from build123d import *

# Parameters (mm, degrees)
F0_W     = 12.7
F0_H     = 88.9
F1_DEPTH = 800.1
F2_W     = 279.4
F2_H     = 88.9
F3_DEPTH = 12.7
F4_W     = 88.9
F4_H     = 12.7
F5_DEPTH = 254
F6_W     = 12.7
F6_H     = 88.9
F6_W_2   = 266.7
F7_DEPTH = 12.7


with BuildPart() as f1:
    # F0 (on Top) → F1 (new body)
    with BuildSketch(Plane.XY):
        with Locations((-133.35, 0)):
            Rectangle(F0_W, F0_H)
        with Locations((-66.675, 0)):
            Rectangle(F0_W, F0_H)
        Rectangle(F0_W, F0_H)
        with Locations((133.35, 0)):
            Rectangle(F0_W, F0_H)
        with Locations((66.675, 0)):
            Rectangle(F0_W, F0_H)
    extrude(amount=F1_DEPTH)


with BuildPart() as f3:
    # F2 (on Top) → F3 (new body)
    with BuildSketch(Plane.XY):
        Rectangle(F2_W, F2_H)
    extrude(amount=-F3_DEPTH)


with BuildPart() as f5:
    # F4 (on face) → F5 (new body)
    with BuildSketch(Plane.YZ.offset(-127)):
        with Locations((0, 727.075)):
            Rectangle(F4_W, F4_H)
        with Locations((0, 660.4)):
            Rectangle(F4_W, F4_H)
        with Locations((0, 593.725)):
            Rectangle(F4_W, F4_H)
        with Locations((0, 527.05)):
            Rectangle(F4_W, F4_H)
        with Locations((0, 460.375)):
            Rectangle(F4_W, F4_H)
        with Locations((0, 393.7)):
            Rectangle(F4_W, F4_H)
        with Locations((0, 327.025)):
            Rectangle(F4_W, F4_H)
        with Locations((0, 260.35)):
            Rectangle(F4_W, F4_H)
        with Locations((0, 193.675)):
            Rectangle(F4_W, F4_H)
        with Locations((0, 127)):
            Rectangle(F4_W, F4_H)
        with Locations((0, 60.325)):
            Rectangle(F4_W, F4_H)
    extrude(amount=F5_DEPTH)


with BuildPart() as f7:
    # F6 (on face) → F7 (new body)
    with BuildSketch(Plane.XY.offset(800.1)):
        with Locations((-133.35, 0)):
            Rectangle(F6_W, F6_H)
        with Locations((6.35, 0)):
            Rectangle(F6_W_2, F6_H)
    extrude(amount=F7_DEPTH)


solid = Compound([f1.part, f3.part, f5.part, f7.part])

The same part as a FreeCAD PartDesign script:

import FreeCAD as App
import Part
import Sketcher

V = App.Vector
Q = App.Units.Quantity


def add_polygon(sketch, points):
    """Adds a closed chain of lines whose ends are joined by coincident constraints."""
    first, n = sketch.GeometryCount, len(points)
    for a, b in zip(points, points[1:] + points[:1]):
        sketch.addGeometry(Part.LineSegment(App.Vector(*a, 0), App.Vector(*b, 0)), False)
    for i in range(n):
        sketch.addConstraint(Sketcher.Constraint("Coincident", first + i, 2, first + (i + 1) % n, 1))

doc = App.newDocument("Part")
params = doc.addObject("Spreadsheet::Sheet", "Params")
for row, (alias, value) in enumerate([
    ("sketch1_width", "0.5 in"),
    ("sketch1_height", "3.5 in"),
    ("pad1_length", "31.5 in"),
    ("sketch2_width", "11 in"),
    ("sketch2_height", "3.5 in"),
    ("pad2_length", "0.5 in"),
    ("sketch3_width", "3.5 in"),
    ("sketch3_height", "0.5 in"),
    ("pad3_length", "10 in"),
    ("sketch4_width", "11 in"),
    ("sketch4_height", "3.5 in"),
    ("pad4_length", "0.5 in"),
], start=1):
    params.set(f"A{row}", alias)
    params.set(f"B{row}", "=" + value)
    params.setAlias(f"B{row}", alias)

body = doc.addObject("PartDesign::Body", "Body")
body.AllowCompound = True

sketch1 = body.newObject("Sketcher::SketchObject", "Sketch")
sketch1.AttachmentSupport = (doc.getObject("XY_Plane"), [""])
sketch1.MapMode = "FlatFace"
add_polygon(sketch1, [(-140, 44), (-140, -44), (-127, -44), (-127, 44)])
add_polygon(sketch1, [(-73, 44), (-73, -44), (-60, -44), (-60, 44)])
add_polygon(sketch1, [(-6, 44), (-6, -44), (6, -44), (6, 44)])
add_polygon(sketch1, [(127, 44), (127, -44), (140, -44), (140, 44)])
add_polygon(sketch1, [(60, 44), (60, -44), (73, -44), (73, 44)])
sketch1.addConstraint([
    Sketcher.Constraint("Vertical", 0),
    Sketcher.Constraint("Horizontal", 1),
    Sketcher.Constraint("Vertical", 2),
    Sketcher.Constraint("Horizontal", 3),
    Sketcher.Constraint("Vertical", 4),
    Sketcher.Constraint("Horizontal", 5),
    Sketcher.Constraint("Vertical", 6),
    Sketcher.Constraint("Horizontal", 7),
    Sketcher.Constraint("Vertical", 8),
    Sketcher.Constraint("Horizontal", 9),
    Sketcher.Constraint("Vertical", 10),
    Sketcher.Constraint("Horizontal", 11),
    Sketcher.Constraint("Vertical", 12),
    Sketcher.Constraint("Horizontal", 13),
    Sketcher.Constraint("Vertical", 14),
    Sketcher.Constraint("Horizontal", 15),
    Sketcher.Constraint("Vertical", 16),
    Sketcher.Constraint("Horizontal", 17),
    Sketcher.Constraint("Vertical", 18),
    Sketcher.Constraint("Horizontal", 19),
    Sketcher.Constraint("Symmetric", 8, 2, 10, 2, -1, 1),
    Sketcher.Constraint("Symmetric", 2, 2, 12, 2, -1, 1),
    Sketcher.Constraint("Symmetric", 0, 2, 14, 2, -1, 1),
    Sketcher.Constraint("Symmetric", 6, 2, 16, 2, -1, 1),
    Sketcher.Constraint("Symmetric", 4, 2, 18, 2, -1, 1),
    Sketcher.Constraint("Horizontal", 1, 2, 4, 2),
    Sketcher.Constraint("Horizontal", 3, 2, 6, 2),
    Sketcher.Constraint("Horizontal", 5, 2, 8, 2),
    Sketcher.Constraint("Horizontal", 7, 2, 10, 2),
    Sketcher.Constraint("Equal", 3, 5),
    Sketcher.Constraint("Equal", 7, 9),
    Sketcher.Constraint("DistanceX", 1, 1, 1, 2, Q("0.5 in")),
    Sketcher.Constraint("DistanceY", 0, 2, 0, 1, Q("3.5 in")),
    Sketcher.Constraint("DistanceX", 1, 2, -1, 1, Q("5 in")),
    Sketcher.Constraint("DistanceX", 4, 2, -1, 1, Q("2.875 in")),
])
sketch1.setExpression("Constraints[51]", "Params.sketch1_width")
sketch1.setExpression("Constraints[52]", "Params.sketch1_height")
pad1 = body.newObject("PartDesign::Pad", "Pad")
pad1.Profile = sketch1
pad1.setExpression("Length", "Params.pad1_length")
body2 = doc.addObject("PartDesign::Body", "Body001")

sketch2 = body2.newObject("Sketcher::SketchObject", "Sketch001")
sketch2.AttachmentSupport = (doc.getObject("XY_Plane001"), [""])
sketch2.MapMode = "FlatFace"
add_polygon(sketch2, [(-140, 44), (-140, -44), (140, -44), (140, 44)])
sketch2.addConstraint([
    Sketcher.Constraint("Vertical", 0),
    Sketcher.Constraint("Horizontal", 1),
    Sketcher.Constraint("Vertical", 2),
    Sketcher.Constraint("Horizontal", 3),
    Sketcher.Constraint("Symmetric", 0, 2, 2, 2, -1, 1),
    Sketcher.Constraint("DistanceX", 1, 1, 1, 2, Q("11 in")),
    Sketcher.Constraint("DistanceY", 0, 2, 0, 1, Q("3.5 in")),
])
sketch2.setExpression("Constraints[9]", "Params.sketch2_width")
sketch2.setExpression("Constraints[10]", "Params.sketch2_height")
pad2 = body2.newObject("PartDesign::Pad", "Pad001")
pad2.Profile = sketch2
pad2.setExpression("Length", "Params.pad2_length")
pad2.Reversed = True
body3 = doc.addObject("PartDesign::Body", "Body002")
body3.AllowCompound = True

sketch3 = body3.newObject("Sketcher::SketchObject", "Sketch002")
sketch3.AttachmentSupport = (doc.getObject("YZ_Plane002"), [""])
sketch3.MapMode = "FlatFace"
sketch3.AttachmentOffset = App.Placement(V(0, 0, -5 * 25.4), App.Rotation())
add_polygon(sketch3, [(-44, 733), (-44, 721), (44, 721), (44, 733)])
add_polygon(sketch3, [(-44, 667), (-44, 654), (44, 654), (44, 667)])
add_polygon(sketch3, [(-44, 600), (-44, 587), (44, 587), (44, 600)])
add_polygon(sketch3, [(-44, 533), (-44, 521), (44, 521), (44, 533)])
add_polygon(sketch3, [(-44, 467), (-44, 454), (44, 454), (44, 467)])
add_polygon(sketch3, [(-44, 400), (-44, 387), (44, 387), (44, 400)])
add_polygon(sketch3, [(-44, 333), (-44, 321), (44, 321), (44, 333)])
add_polygon(sketch3, [(-44, 267), (-44, 254), (44, 254), (44, 267)])
add_polygon(sketch3, [(-44, 200), (-44, 187), (44, 187), (44, 200)])
add_polygon(sketch3, [(-44, 133), (-44, 121), (44, 121), (44, 133)])
add_polygon(sketch3, [(-44, 67), (-44, 54), (44, 54), (44, 67)])
sketch3.addConstraint([
    Sketcher.Constraint("Vertical", 0),
    Sketcher.Constraint("Horizontal", 1),
    Sketcher.Constraint("Vertical", 2),
    Sketcher.Constraint("Horizontal", 3),
    Sketcher.Constraint("Vertical", 4),
    Sketcher.Constraint("Horizontal", 5),
    Sketcher.Constraint("Vertical", 6),
    Sketcher.Constraint("Horizontal", 7),
    Sketcher.Constraint("Vertical", 8),
    Sketcher.Constraint("Horizontal", 9),
    Sketcher.Constraint("Vertical", 10),
    Sketcher.Constraint("Horizontal", 11),
    Sketcher.Constraint("Vertical", 12),
    Sketcher.Constraint("Horizontal", 13),
    Sketcher.Constraint("Vertical", 14),
    Sketcher.Constraint("Horizontal", 15),
    Sketcher.Constraint("Vertical", 16),
    Sketcher.Constraint("Horizontal", 17),
    Sketcher.Constraint("Vertical", 18),
    Sketcher.Constraint("Horizontal", 19),
    Sketcher.Constraint("Vertical", 20),
    Sketcher.Constraint("Horizontal", 21),
    Sketcher.Constraint("Vertical", 22),
    Sketcher.Constraint("Horizontal", 23),
    Sketcher.Constraint("Vertical", 24),
    Sketcher.Constraint("Horizontal", 25),
    Sketcher.Constraint("Vertical", 26),
    Sketcher.Constraint("Horizontal", 27),
    Sketcher.Constraint("Vertical", 28),
    Sketcher.Constraint("Horizontal", 29),
    Sketcher.Constraint("Vertical", 30),
    Sketcher.Constraint("Horizontal", 31),
    Sketcher.Constraint("Vertical", 32),
    Sketcher.Constraint("Horizontal", 33),
    Sketcher.Constraint("Vertical", 34),
    Sketcher.Constraint("Horizontal", 35),
    Sketcher.Constraint("Vertical", 36),
    Sketcher.Constraint("Horizontal", 37),
    Sketcher.Constraint("Vertical", 38),
    Sketcher.Constraint("Horizontal", 39),
    Sketcher.Constraint("Vertical", 40),
    Sketcher.Constraint("Horizontal", 41),
    Sketcher.Constraint("Vertical", 42),
    Sketcher.Constraint("Horizontal", 43),
    Sketcher.Constraint("Vertical", 3, 2, 4, 2),
    Sketcher.Constraint("Vertical", 2, 2, 5, 2),
    Sketcher.Constraint("Vertical", 7, 2, 8, 2),
    Sketcher.Constraint("Vertical", 6, 2, 9, 2),
    Sketcher.Constraint("Vertical", 11, 2, 12, 2),
    Sketcher.Constraint("Vertical", 10, 2, 13, 2),
    Sketcher.Constraint("Vertical", 15, 2, 16, 2),
    Sketcher.Constraint("Vertical", 14, 2, 17, 2),
    Sketcher.Constraint("Vertical", 19, 2, 20, 2),
    Sketcher.Constraint("Vertical", 18, 2, 21, 2),
    Sketcher.Constraint("Vertical", 23, 2, 24, 2),
    Sketcher.Constraint("Vertical", 22, 2, 25, 2),
    Sketcher.Constraint("Vertical", 27, 2, 28, 2),
    Sketcher.Constraint("Vertical", 26, 2, 29, 2),
    Sketcher.Constraint("Vertical", 31, 2, 32, 2),
    Sketcher.Constraint("Vertical", 30, 2, 33, 2),
    Sketcher.Constraint("Vertical", 35, 2, 36, 2),
    Sketcher.Constraint("Vertical", 34, 2, 37, 2),
    Sketcher.Constraint("Vertical", 39, 2, 40, 2),
    Sketcher.Constraint("Vertical", 38, 2, 41, 2),
    Sketcher.Constraint("Equal", 2, 4),
    Sketcher.Constraint("Equal", 6, 8),
    Sketcher.Constraint("Equal", 10, 12),
    Sketcher.Constraint("Equal", 14, 16),
    Sketcher.Constraint("Equal", 18, 20),
    Sketcher.Constraint("Equal", 22, 24),
    Sketcher.Constraint("Equal", 26, 28),
    Sketcher.Constraint("Equal", 30, 32),
    Sketcher.Constraint("Equal", 34, 36),
    Sketcher.Constraint("Equal", 38, 40),
    Sketcher.Constraint("DistanceX", 1, 1, 1, 2, Q("3.5 in")),
    Sketcher.Constraint("DistanceY", 0, 2, 0, 1, Q("0.5 in")),
    Sketcher.Constraint("DistanceY", -1, 1, 14, 2, Q("21 in")),
    Sketcher.Constraint("DistanceY", -1, 1, 28, 2, Q("10 in")),
    Sketcher.Constraint("DistanceX", 0, 2, -1, 1, Q("1.75 in")),
    Sketcher.Constraint("DistanceY", -1, 1, 4, 2, Q("25.75 in")),
    Sketcher.Constraint("DistanceY", -1, 1, 20, 2, Q("15.25 in")),
    Sketcher.Constraint("DistanceY", -1, 1, 36, 2, Q("4.75 in")),
    Sketcher.Constraint("DistanceY", 8, 2, 0, 2, Q("5.25 in")),
    Sketcher.Constraint("DistanceY", 16, 2, 8, 2, Q("5.25 in")),
    Sketcher.Constraint("DistanceY", 24, 2, 16, 2, Q("5.25 in")),
    Sketcher.Constraint("DistanceY", 32, 2, 24, 2, Q("5.25 in")),
    Sketcher.Constraint("DistanceY", 40, 2, 32, 2, Q("5.25 in")),
    Sketcher.Constraint("DistanceY", -1, 1, 0, 2, Q("28.375 in")),
])
sketch3.setExpression("Constraints[118]", "Params.sketch3_width")
sketch3.setExpression("Constraints[119]", "Params.sketch3_height")
pad3 = body3.newObject("PartDesign::Pad", "Pad002")
pad3.Profile = sketch3
pad3.setExpression("Length", "Params.pad3_length")
body4 = doc.addObject("PartDesign::Body", "Body003")

sketch4 = body4.newObject("Sketcher::SketchObject", "Sketch003")
sketch4.AttachmentSupport = (doc.getObject("XY_Plane003"), [""])
sketch4.MapMode = "FlatFace"
sketch4.AttachmentOffset = App.Placement(V(0, 0, 31.5 * 25.4), App.Rotation())
add_polygon(sketch4, [(-140, 44), (-140, -44), (140, -44), (140, 44)])
sketch4.addConstraint([
    Sketcher.Constraint("Vertical", 0),
    Sketcher.Constraint("Horizontal", 1),
    Sketcher.Constraint("Vertical", 2),
    Sketcher.Constraint("Horizontal", 3),
    Sketcher.Constraint("Symmetric", 0, 2, 2, 2, -1, 1),
    Sketcher.Constraint("DistanceX", 1, 1, 1, 2, Q("11 in")),
    Sketcher.Constraint("DistanceY", 0, 2, 0, 1, Q("3.5 in")),
])
sketch4.setExpression("Constraints[9]", "Params.sketch4_width")
sketch4.setExpression("Constraints[10]", "Params.sketch4_height")
pad4 = body4.newObject("PartDesign::Pad", "Pad003")
pad4.Profile = sketch4
pad4.setExpression("Length", "Params.pad4_length")

doc.recompute()
